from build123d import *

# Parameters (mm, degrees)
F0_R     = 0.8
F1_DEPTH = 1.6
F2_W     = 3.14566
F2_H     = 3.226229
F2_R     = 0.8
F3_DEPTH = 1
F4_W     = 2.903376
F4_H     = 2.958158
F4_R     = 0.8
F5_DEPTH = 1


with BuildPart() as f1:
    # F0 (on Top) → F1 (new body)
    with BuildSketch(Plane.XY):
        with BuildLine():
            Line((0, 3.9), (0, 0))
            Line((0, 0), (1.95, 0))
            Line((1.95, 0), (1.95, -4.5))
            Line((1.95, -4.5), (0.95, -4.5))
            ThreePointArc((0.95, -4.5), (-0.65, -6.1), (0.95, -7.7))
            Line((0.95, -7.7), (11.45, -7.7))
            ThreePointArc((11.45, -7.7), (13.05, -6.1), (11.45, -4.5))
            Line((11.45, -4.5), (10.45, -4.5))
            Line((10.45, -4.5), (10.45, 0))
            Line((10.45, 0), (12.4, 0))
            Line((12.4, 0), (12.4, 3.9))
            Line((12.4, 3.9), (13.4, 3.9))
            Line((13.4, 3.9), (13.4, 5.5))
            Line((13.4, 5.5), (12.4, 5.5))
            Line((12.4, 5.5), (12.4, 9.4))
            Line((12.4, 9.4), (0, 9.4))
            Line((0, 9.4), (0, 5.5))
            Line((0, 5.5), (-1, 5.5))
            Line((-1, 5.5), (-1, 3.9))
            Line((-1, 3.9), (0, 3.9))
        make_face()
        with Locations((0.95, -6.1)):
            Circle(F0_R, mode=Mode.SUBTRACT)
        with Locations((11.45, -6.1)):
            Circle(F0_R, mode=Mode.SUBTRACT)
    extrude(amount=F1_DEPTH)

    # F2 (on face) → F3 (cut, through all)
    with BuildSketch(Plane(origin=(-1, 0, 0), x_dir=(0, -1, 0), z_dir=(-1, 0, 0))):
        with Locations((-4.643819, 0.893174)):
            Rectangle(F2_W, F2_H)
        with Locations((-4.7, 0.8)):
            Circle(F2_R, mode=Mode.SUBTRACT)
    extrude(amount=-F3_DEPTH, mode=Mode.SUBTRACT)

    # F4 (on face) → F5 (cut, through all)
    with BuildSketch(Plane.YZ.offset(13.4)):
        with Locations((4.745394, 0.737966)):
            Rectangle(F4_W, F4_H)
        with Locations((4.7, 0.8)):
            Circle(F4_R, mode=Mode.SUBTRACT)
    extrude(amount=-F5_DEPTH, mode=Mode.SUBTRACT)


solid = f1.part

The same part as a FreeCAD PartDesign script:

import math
import FreeCAD as App
import Part
import Sketcher

V = App.Vector


def add_polygon(sketch, points):
    """Adds a closed chain of lines whose ends are joined by coincident constraints."""
    first, n = sketch.GeometryCount, len(points)
    for a, b in zip(points, points[1:] + points[:1]):
        sketch.addGeometry(Part.LineSegment(App.Vector(*a, 0), App.Vector(*b, 0)), False)
    for i in range(n):
        sketch.addConstraint(Sketcher.Constraint("Coincident", first + i, 2, first + (i + 1) % n, 1))

doc = App.newDocument("Part")
params = doc.addObject("Spreadsheet::Sheet", "Params")
for row, (alias, value) in enumerate([
    ("sketch1_diameter", "1.6 mm"),
    ("sketch1_radius", "1.6 mm"),
    ("sketch1_width", "1 mm"),
    ("sketch1_width2", "10.5 mm"),
    ("sketch1_width3", "12.4 mm"),
    ("pad1_length", "1.6 mm"),
    ("sketch2_diameter", "1.6 mm"),
    ("pocket1_length", "1 mm"),
    ("sketch3_diameter", "1.6 mm"),
    ("pocket2_length", "1 mm"),
], start=1):
    params.set(f"A{row}", alias)
    params.set(f"B{row}", "=" + value)
    params.setAlias(f"B{row}", alias)

body = doc.addObject("PartDesign::Body", "Body")

# Sketch on XY plane
sketch1 = body.newObject("Sketcher::SketchObject", "Sketch")
sketch1.AttachmentSupport = (doc.getObject("XY_Plane"), [""])
sketch1.MapMode = "FlatFace"
sketch1.addGeometry([
    Part.LineSegment(V(0, 3.9, 0), V(0, 0, 0)),  # 0
    Part.LineSegment(V(0, 0, 0), V(1.9, 0, 0)),  # 1
    Part.LineSegment(V(1.9, 0, 0), V(1.9, -4.5, 0)),  # 2
    Part.LineSegment(V(1.9, -4.5, 0), V(0.9, -4.5, 0)),  # 3
    Part.ArcOfCircle(Part.Circle(V(0.9, -6.1, 0), V(0, 0, 1), 1.6), math.radians(90), math.radians(270)),  # 4
    Part.LineSegment(V(0.9, -7.7, 0), V(11.4, -7.7, 0)),  # 5
    Part.ArcOfCircle(Part.Circle(V(11.4, -6.1, 0), V(0, 0, 1), 1.6), math.radians(-90), math.radians(90)),  # 6
    Part.LineSegment(V(11.4, -4.5, 0), V(10.4, -4.5, 0)),  # 7
    Part.LineSegment(V(10.4, -4.5, 0), V(10.4, 0, 0)),  # 8
    Part.LineSegment(V(10.4, 0, 0), V(12.4, 0, 0)),  # 9
    Part.LineSegment(V(12.4, 0, 0), V(12.4, 3.9, 0)),  # 10
    Part.LineSegment(V(12.4, 3.9, 0), V(13.4, 3.9, 0)),  # 11
    Part.LineSegment(V(13.4, 3.9, 0), V(13.4, 5.5, 0)),  # 12
    Part.LineSegment(V(13.4, 5.5, 0), V(12.4, 5.5, 0)),  # 13
    Part.LineSegment(V(12.4, 5.5, 0), V(12.4, 9.4, 0)),  # 14
    Part.LineSegment(V(12.4, 9.4, 0), V(0, 9.4, 0)),  # 15
    Part.LineSegment(V(0, 9.4, 0), V(0, 5.5, 0)),  # 16
    Part.LineSegment(V(0, 5.5, 0), V(-1, 5.5, 0)),  # 17
    Part.LineSegment(V(-1, 5.5, 0), V(-1, 3.9, 0)),  # 18
    Part.LineSegment(V(-1, 3.9, 0), V(0, 3.9, 0)),  # 19
    Part.Circle(V(0.9, -6.1, 0), V(0, 0, 1), 0.8),  # 20
    Part.Circle(V(11.4, -6.1, 0), V(0, 0, 1), 0.8),  # 21
], False)
sketch1.addConstraint([
    Sketcher.Constraint("Coincident", 0, 2, 1, 1),
    Sketcher.Constraint("Coincident", 1, 2, 2, 1),
    Sketcher.Constraint("Coincident", 2, 2, 3, 1),
    Sketcher.Constraint("Tangent", 3, 2, 4, 1),
    Sketcher.Constraint("Tangent", 4, 2, 5, 1),
    Sketcher.Constraint("Tangent", 5, 2, 6, 1),
    Sketcher.Constraint("Tangent", 6, 2, 7, 1),
    Sketcher.Constraint("Coincident", 7, 2, 8, 1),
    Sketcher.Constraint("Coincident", 8, 2, 9, 1),
    Sketcher.Constraint("Coincident", 9, 2, 10, 1),
    Sketcher.Constraint("Coincident", 10, 2, 11, 1),
    Sketcher.Constraint("Coincident", 11, 2, 12, 1),
    Sketcher.Constraint("Coincident", 12, 2, 13, 1),
    Sketcher.Constraint("Coincident", 13, 2, 14, 1),
    Sketcher.Constraint("Coincident", 14, 2, 15, 1),
    Sketcher.Constraint("Coincident", 15, 2, 16, 1),
    Sketcher.Constraint("Coincident", 16, 2, 17, 1),
    Sketcher.Constraint("Coincident", 17, 2, 18, 1),
    Sketcher.Constraint("Coincident", 18, 2, 19, 1),
    Sketcher.Constraint("Coincident", 19, 2, 0, 1),
    Sketcher.Constraint("Vertical", 0),
    Sketcher.Constraint("Horizontal", 1),
    Sketcher.Constraint("Vertical", 2),
    Sketcher.Constraint("Horizontal", 3),
    Sketcher.Constraint("Horizontal", 5),
    Sketcher.Constraint("Horizontal", 7),
    Sketcher.Constraint("Vertical", 8),
    Sketcher.Constraint("Horizontal", 9),
    Sketcher.Constraint("Vertical", 10),
    Sketcher.Constraint("Horizontal", 11),
    Sketcher.Constraint("Vertical", 12),
    Sketcher.Constraint("Horizontal", 13),
    Sketcher.Constraint("Vertical", 14),
    Sketcher.Constraint("Horizontal", 15),
    Sketcher.Constraint("Vertical", 16),
    Sketcher.Constraint("Horizontal", 17),
    Sketcher.Constraint("Vertical", 18),
    Sketcher.Constraint("Horizontal", 19),
    Sketcher.Constraint("Coincident", 0, 2, -1, 1),
    Sketcher.Constraint("Coincident", 20, 3, 4, 3),
    Sketcher.Constraint("Coincident", 21, 3, 6, 3),
    Sketcher.Constraint("Equal", 4, 6),
    Sketcher.Constraint("Equal", 20, 21),
    Sketcher.Constraint("PointOnObject", 8, 2, -1),
    Sketcher.Constraint("PointOnObject", 15, 2, -2),
    Sketcher.Constraint("Horizontal", 13, 2, 16, 2),
    Sketcher.Constraint("Horizontal", 11, 2, 18, 2),
    Sketcher.Constraint("Vertical", 10, 2, 13, 2),
    Sketcher.Constraint("Equal", 3, 7),
    Sketcher.Constraint("Equal", 1, 9),
    Sketcher.Constraint("Equal", 7, 11),
    Sketcher.Constraint("Equal", 13, 17),
    Sketcher.Constraint("Equal", 10, 14),
    Sketcher.Constraint("Diameter", 20, 1.6),
    Sketcher.Constraint("Radius", 4, 1.6),
    Sketcher.Constraint("DistanceX", 3, 2, 3, 1, 1.0),
    Sketcher.Constraint("DistanceX", 5, 1, 5, 2, 10.5),
    Sketcher.Constraint("DistanceX", 15, 2, 15, 1, 12.4),
    Sketcher.Constraint("DistanceY", 0, 2, 0, 1, 3.9),
    Sketcher.Constraint("DistanceY", 2, 2, 2, 1, 4.5),
    Sketcher.Constraint("DistanceY", 12, 1, 12, 2, 1.6),
])
sketch1.setExpression("Constraints[53]", "Params.sketch1_diameter")
sketch1.setExpression("Constraints[54]", "Params.sketch1_radius")
sketch1.setExpression("Constraints[55]", "Params.sketch1_width")
sketch1.setExpression("Constraints[56]", "Params.sketch1_width2")
sketch1.setExpression("Constraints[57]", "Params.sketch1_width3")
pad1 = body.newObject("PartDesign::Pad", "Pad")
pad1.Profile = sketch1
pad1.setExpression("Length", "Params.pad1_length")

# Sketch on YZ plane
sketch2 = body.newObject("Sketcher::SketchObject", "Sketch001")
sketch2.AttachmentSupport = (doc.getObject("YZ_Plane"), [""])
sketch2.MapMode = "FlatFace"
sketch2.AttachmentOffset = App.Placement(V(0, 0, -1), App.Rotation())
add_polygon(sketch2, [(6.2, 2.5), (6.2, -0.7), (3.1, -0.7), (3.1, 2.5)])  # lines 0-3
sketch2.addGeometry(Part.Circle(V(4.7, 0.8, 0), V(0, 0, 1), 0.8), False)  # 4
sketch2.addConstraint([
    Sketcher.Constraint("Vertical", 0),
    Sketcher.Constraint("Horizontal", 1),
    Sketcher.Constraint("Vertical", 2),
    Sketcher.Constraint("Horizontal", 3),
    Sketcher.Constraint("Diameter", 4, 1.6),
    Sketcher.Constraint("DistanceX", -1, 1, 4, 3, 4.7),
    Sketcher.Constraint("DistanceY", -1, 1, 4, 3, 0.8),
    Sketcher.Constraint("DistanceX", 1, 2, 1, 1, 3.14566),
    Sketcher.Constraint("DistanceY", 0, 2, 0, 1, 3.226229),
    Sketcher.Constraint("DistanceX", -1, 1, 0, 2, 6.216649),
    Sketcher.Constraint("DistanceY", 0, 2, -1, 1, 0.71994),
])
sketch2.setExpression("Constraints[8]", "Params.sketch2_diameter")
pocket1 = body.newObject("PartDesign::Pocket", "Pocket")
pocket1.Profile = sketch2
pocket1.setExpression("Length", "Params.pocket1_length")
pocket1.Reversed = True

# Sketch on YZ plane
sketch3 = body.newObject("Sketcher::SketchObject", "Sketch002")
sketch3.AttachmentSupport = (doc.getObject("YZ_Plane"), [""])
sketch3.MapMode = "FlatFace"
sketch3.AttachmentOffset = App.Placement(V(0, 0, 13.4), App.Rotation())
add_polygon(sketch3, [(3.3, 2.2), (3.3, -0.7), (6.2, -0.7), (6.2, 2.2)])  # lines 0-3
sketch3.addGeometry(Part.Circle(V(4.7, 0.8, 0), V(0, 0, 1), 0.8), False)  # 4
sketch3.addConstraint([
    Sketcher.Constraint("Vertical", 0),
    Sketcher.Constraint("Horizontal", 1),
    Sketcher.Constraint("Vertical", 2),
    Sketcher.Constraint("Horizontal", 3),
    Sketcher.Constraint("Diameter", 4, 1.6),
    Sketcher.Constraint("DistanceX", -1, 1, 4, 3, 4.7),
    Sketcher.Constraint("DistanceY", -1, 1, 4, 3, 0.8),
    Sketcher.Constraint("DistanceY", 0, 2, 0, 1, 2.958158),
    Sketcher.Constraint("DistanceX", 1, 1, 1, 2, 2.903376),
    Sketcher.Constraint("DistanceX", 4, 3, 1, 2, 1.497082),
    Sketcher.Constraint("DistanceY", 0, 2, -1, 1, 0.741113),
])
sketch3.setExpression("Constraints[8]", "Params.sketch3_diameter")
pocket2 = body.newObject("PartDesign::Pocket", "Pocket001")
pocket2.Profile = sketch3
pocket2.setExpression("Length", "Params.pocket2_length")

doc.recompute()
